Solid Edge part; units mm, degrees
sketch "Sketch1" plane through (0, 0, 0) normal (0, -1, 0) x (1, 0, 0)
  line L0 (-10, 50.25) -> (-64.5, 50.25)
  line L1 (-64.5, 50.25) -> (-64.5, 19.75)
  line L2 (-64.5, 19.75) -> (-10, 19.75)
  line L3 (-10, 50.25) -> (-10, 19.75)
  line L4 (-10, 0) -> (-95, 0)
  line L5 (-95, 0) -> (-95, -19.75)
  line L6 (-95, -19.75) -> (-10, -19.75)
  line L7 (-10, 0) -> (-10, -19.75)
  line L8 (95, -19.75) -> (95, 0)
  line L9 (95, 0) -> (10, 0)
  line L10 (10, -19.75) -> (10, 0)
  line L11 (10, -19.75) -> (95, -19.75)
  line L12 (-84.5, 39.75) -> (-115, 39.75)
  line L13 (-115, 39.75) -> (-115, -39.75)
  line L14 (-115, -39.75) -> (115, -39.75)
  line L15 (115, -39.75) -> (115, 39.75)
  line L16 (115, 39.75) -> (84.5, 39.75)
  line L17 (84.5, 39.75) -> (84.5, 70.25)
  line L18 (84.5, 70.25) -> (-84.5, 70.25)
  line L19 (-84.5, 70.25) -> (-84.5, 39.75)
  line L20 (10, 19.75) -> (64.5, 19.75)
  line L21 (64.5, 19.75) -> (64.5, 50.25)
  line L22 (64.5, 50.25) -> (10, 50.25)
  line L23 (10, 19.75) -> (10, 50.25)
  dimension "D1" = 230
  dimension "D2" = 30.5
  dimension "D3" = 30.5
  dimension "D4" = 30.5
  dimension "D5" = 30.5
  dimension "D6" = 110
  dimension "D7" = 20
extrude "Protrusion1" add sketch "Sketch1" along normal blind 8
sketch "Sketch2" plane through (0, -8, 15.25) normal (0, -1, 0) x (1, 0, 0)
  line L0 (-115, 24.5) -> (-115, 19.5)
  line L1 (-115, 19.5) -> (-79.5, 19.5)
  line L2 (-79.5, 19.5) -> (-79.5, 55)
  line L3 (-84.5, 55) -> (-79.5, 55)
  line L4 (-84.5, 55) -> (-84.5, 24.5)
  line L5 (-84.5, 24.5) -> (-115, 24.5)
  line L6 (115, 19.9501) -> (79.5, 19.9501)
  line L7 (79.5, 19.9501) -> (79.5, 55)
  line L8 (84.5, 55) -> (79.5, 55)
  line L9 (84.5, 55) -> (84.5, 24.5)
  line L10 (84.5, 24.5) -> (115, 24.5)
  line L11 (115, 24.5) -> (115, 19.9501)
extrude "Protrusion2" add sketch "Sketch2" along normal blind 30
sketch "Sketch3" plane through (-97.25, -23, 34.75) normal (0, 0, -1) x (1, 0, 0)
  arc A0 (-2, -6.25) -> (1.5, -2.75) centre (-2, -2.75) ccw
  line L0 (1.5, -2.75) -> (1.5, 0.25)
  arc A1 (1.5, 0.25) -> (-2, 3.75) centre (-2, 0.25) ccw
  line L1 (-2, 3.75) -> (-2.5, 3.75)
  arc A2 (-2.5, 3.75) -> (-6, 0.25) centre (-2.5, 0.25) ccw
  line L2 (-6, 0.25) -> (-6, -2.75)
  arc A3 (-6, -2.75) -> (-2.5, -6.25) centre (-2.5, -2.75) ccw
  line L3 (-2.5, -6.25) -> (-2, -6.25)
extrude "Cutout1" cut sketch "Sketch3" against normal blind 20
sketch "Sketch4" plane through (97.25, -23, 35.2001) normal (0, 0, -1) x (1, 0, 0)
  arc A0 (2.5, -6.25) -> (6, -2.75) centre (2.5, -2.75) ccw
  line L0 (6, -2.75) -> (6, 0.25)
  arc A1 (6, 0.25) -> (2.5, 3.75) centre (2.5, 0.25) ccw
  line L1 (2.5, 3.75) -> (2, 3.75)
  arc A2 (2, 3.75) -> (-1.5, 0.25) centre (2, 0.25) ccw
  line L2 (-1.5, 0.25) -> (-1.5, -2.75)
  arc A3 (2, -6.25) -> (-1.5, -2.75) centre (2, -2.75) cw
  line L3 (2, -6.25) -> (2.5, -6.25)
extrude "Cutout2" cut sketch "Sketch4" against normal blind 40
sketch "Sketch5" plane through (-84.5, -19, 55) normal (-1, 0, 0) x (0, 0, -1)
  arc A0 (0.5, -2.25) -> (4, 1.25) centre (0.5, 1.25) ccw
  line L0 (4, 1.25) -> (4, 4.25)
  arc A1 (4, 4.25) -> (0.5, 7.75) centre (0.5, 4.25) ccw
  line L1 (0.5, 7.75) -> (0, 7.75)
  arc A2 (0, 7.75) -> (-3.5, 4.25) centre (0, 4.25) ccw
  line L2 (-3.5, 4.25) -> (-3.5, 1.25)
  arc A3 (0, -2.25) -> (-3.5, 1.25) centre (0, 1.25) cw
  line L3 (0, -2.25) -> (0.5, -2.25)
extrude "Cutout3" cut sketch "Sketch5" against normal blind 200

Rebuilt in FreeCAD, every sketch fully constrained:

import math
import FreeCAD as App
import Part
import Sketcher

V = App.Vector
Q = App.Units.Quantity

doc = App.newDocument("Part")
params = doc.addObject("Spreadsheet::Sheet", "Params")
for row, (alias, value) in enumerate([
    ("sketch1_width", "230 mm"),
    ("sketch1_width2", "169 mm"),
    ("sketch1_width3", "85 mm"),
    ("sketch1_width4", "54.5 mm"),
    ("sketch1_height", "79.5 mm"),
    ("pad1_length", "8 mm"),
    ("sketch2_width", "5 mm"),
    ("sketch2_width2", "30.5 mm"),
    ("sketch2_height", "4.55 mm"),
    ("pad2_length", "30 mm"),
    ("sketch3_radius", "3.5 mm"),
    ("sketch3_height", "3 mm"),
    ("sketch3_width", "0.5 mm"),
    ("pocket1_length", "20 mm"),
    ("sketch4_radius", "3.5 mm"),
    ("sketch4_height", "3 mm"),
    ("sketch4_width", "0.5 mm"),
    ("pocket2_length", "40 mm"),
    ("sketch5_radius", "3.5 mm"),
    ("sketch5_width", "3 mm"),
    ("sketch5_height", "0.5 mm"),
    ("pocket3_length", "200 mm"),
], start=1):
    params.set(f"A{row}", alias)
    params.set(f"B{row}", "=" + value)
    params.setAlias(f"B{row}", alias)

body = doc.addObject("PartDesign::Body", "Body")

# Sketch on XZ plane
sketch1 = body.newObject("Sketcher::SketchObject", "Sketch")
sketch1.AttachmentSupport = (doc.getObject("XZ_Plane"), [""])
sketch1.MapMode = "FlatFace"
sketch1.addGeometry(Part.LineSegment(V(-84, 70, 0), V(-84, 40, 0)), False)
sketch1.addGeometry(Part.LineSegment(V(-84, 40, 0), V(-115, 40, 0)), False)
sketch1.addGeometry(Part.LineSegment(V(-115, 40, 0), V(-115, -40, 0)), False)
sketch1.addGeometry(Part.LineSegment(V(-115, -40, 0), V(115, -40, 0)), False)
sketch1.addGeometry(Part.LineSegment(V(115, -40, 0), V(115, 40, 0)), False)
sketch1.addGeometry(Part.LineSegment(V(115, 40, 0), V(84, 40, 0)), False)
sketch1.addGeometry(Part.LineSegment(V(84, 40, 0), V(84, 70, 0)), False)
sketch1.addGeometry(Part.LineSegment(V(84, 70, 0), V(-84, 70, 0)), False)
sketch1.addGeometry(Part.LineSegment(V(-95, 0, 0), V(-10, 0, 0)), False)
sketch1.addGeometry(Part.LineSegment(V(-10, 0, 0), V(-10, -20, 0)), False)
sketch1.addGeometry(Part.LineSegment(V(-10, -20, 0), V(-95, -20, 0)), False)
sketch1.addGeometry(Part.LineSegment(V(-95, -20, 0), V(-95, 0, 0)), False)
sketch1.addGeometry(Part.LineSegment(V(95, 0, 0), V(95, -20, 0)), False)
sketch1.addGeometry(Part.LineSegment(V(95, -20, 0), V(10, -20, 0)), False)
sketch1.addGeometry(Part.LineSegment(V(10, -20, 0), V(10, 0, 0)), False)
sketch1.addGeometry(Part.LineSegment(V(10, 0, 0), V(95, 0, 0)), False)
sketch1.addGeometry(Part.LineSegment(V(-64, 50, 0), V(-10, 50, 0)), False)
sketch1.addGeometry(Part.LineSegment(V(-10, 50, 0), V(-10, 20, 0)), False)
sketch1.addGeometry(Part.LineSegment(V(-10, 20, 0), V(-64, 20, 0)), False)
sketch1.addGeometry(Part.LineSegment(V(-64, 20, 0), V(-64, 50, 0)), False)
sketch1.addGeometry(Part.LineSegment(V(64, 20, 0), V(10, 20, 0)), False)
sketch1.addGeometry(Part.LineSegment(V(10, 20, 0), V(10, 50, 0)), False)
sketch1.addGeometry(Part.LineSegment(V(10, 50, 0), V(64, 50, 0)), False)
sketch1.addGeometry(Part.LineSegment(V(64, 50, 0), V(64, 20, 0)), False)
sketch1.addConstraint(Sketcher.Constraint("Coincident", 0, 2, 1, 1))
sketch1.addConstraint(Sketcher.Constraint("Coincident", 1, 2, 2, 1))
sketch1.addConstraint(Sketcher.Constraint("Coincident", 2, 2, 3, 1))
sketch1.addConstraint(Sketcher.Constraint("Coincident", 3, 2, 4, 1))
sketch1.addConstraint(Sketcher.Constraint("Coincident", 4, 2, 5, 1))
sketch1.addConstraint(Sketcher.Constraint("Coincident", 5, 2, 6, 1))
sketch1.addConstraint(Sketcher.Constraint("Coincident", 6, 2, 7, 1))
sketch1.addConstraint(Sketcher.Constraint("Coincident", 7, 2, 0, 1))
sketch1.addConstraint(Sketcher.Constraint("Coincident", 8, 2, 9, 1))
sketch1.addConstraint(Sketcher.Constraint("Coincident", 9, 2, 10, 1))
sketch1.addConstraint(Sketcher.Constraint("Coincident", 10, 2, 11, 1))
sketch1.addConstraint(Sketcher.Constraint("Coincident", 11, 2, 8, 1))
sketch1.addConstraint(Sketcher.Constraint("Coincident", 12, 2, 13, 1))
sketch1.addConstraint(Sketcher.Constraint("Coincident", 13, 2, 14, 1))
sketch1.addConstraint(Sketcher.Constraint("Coincident", 14, 2, 15, 1))
sketch1.addConstraint(Sketcher.Constraint("Coincident", 15, 2, 12, 1))
sketch1.addConstraint(Sketcher.Constraint("Coincident", 16, 2, 17, 1))
sketch1.addConstraint(Sketcher.Constraint("Coincident", 17, 2, 18, 1))
sketch1.addConstraint(Sketcher.Constraint("Coincident", 18, 2, 19, 1))
sketch1.addConstraint(Sketcher.Constraint("Coincident", 19, 2, 16, 1))
sketch1.addConstraint(Sketcher.Constraint("Coincident", 20, 2, 21, 1))
sketch1.addConstraint(Sketcher.Constraint("Coincident", 21, 2, 22, 1))
sketch1.addConstraint(Sketcher.Constraint("Coincident", 22, 2, 23, 1))
sketch1.addConstraint(Sketcher.Constraint("Coincident", 23, 2, 20, 1))
sketch1.addConstraint(Sketcher.Constraint("Vertical", 0))
sketch1.addConstraint(Sketcher.Constraint("Horizontal", 1))
sketch1.addConstraint(Sketcher.Constraint("Vertical", 2))
sketch1.addConstraint(Sketcher.Constraint("Horizontal", 3))
sketch1.addConstraint(Sketcher.Constraint("Vertical", 4))
sketch1.addConstraint(Sketcher.Constraint("Horizontal", 5))
sketch1.addConstraint(Sketcher.Constraint("Vertical", 6))
sketch1.addConstraint(Sketcher.Constraint("Horizontal", 7))
sketch1.addConstraint(Sketcher.Constraint("Horizontal", 8))
sketch1.addConstraint(Sketcher.Constraint("Vertical", 9))
sketch1.addConstraint(Sketcher.Constraint("Horizontal", 10))
sketch1.addConstraint(Sketcher.Constraint("Vertical", 11))
sketch1.addConstraint(Sketcher.Constraint("Vertical", 12))
sketch1.addConstraint(Sketcher.Constraint("Horizontal", 13))
sketch1.addConstraint(Sketcher.Constraint("Vertical", 14))
sketch1.addConstraint(Sketcher.Constraint("Horizontal", 15))
sketch1.addConstraint(Sketcher.Constraint("Horizontal", 16))
sketch1.addConstraint(Sketcher.Constraint("Vertical", 17))
sketch1.addConstraint(Sketcher.Constraint("Horizontal", 18))
sketch1.addConstraint(Sketcher.Constraint("Vertical", 19))
sketch1.addConstraint(Sketcher.Constraint("Horizontal", 20))
sketch1.addConstraint(Sketcher.Constraint("Vertical", 21))
sketch1.addConstraint(Sketcher.Constraint("Horizontal", 22))
sketch1.addConstraint(Sketcher.Constraint("Vertical", 23))
sketch1.addConstraint(Sketcher.Constraint("Symmetric", 1, 2, 3, 2, -1, 1))
sketch1.addConstraint(Sketcher.Constraint("Symmetric", 8, 2, 14, 2, -1, 1))
sketch1.addConstraint(Sketcher.Constraint("Symmetric", 13, 2, 17, 2, -1, 1))
sketch1.addConstraint(Sketcher.Constraint("Symmetric", 9, 2, 20, 2, -1, 1))
sketch1.addConstraint(Sketcher.Constraint("Symmetric", 0, 2, 5, 2, -2))
sketch1.addConstraint(Sketcher.Constraint("Symmetric", 10, 2, 12, 2, -2))
sketch1.addConstraint(Sketcher.Constraint("Symmetric", 19, 2, 22, 2, -2))
sketch1.addConstraint(Sketcher.Constraint("PointOnObject", 8, 2, -1))
sketch1.addConstraint(Sketcher.Constraint("Equal", 5, 0))
sketch1.addConstraint(Sketcher.Constraint("Equal", 6, 17))
sketch1.addConstraint(Sketcher.Constraint("DistanceX", 3, 1, 3, 2, Q("230 mm")))
sketch1.addConstraint(Sketcher.Constraint("DistanceX", 7, 2, 7, 1, Q("169 mm")))
sketch1.addConstraint(Sketcher.Constraint("DistanceX", 8, 1, 8, 2, Q("85 mm")))
sketch1.addConstraint(Sketcher.Constraint("DistanceX", 16, 1, 16, 2, Q("54.5 mm")))
sketch1.addConstraint(Sketcher.Constraint("DistanceY", 2, 2, 2, 1, Q("79.5 mm")))
sketch1.addConstraint(Sketcher.Constraint("DistanceX", 8, 2, -1, 1, Q("10 mm")))
sketch1.addConstraint(Sketcher.Constraint("DistanceY", 2, 2, 9, 2, Q("20 mm")))
sketch1.setExpression("Constraints[58]", "Params.sketch1_width")
sketch1.setExpression("Constraints[59]", "Params.sketch1_width2")
sketch1.setExpression("Constraints[60]", "Params.sketch1_width3")
sketch1.setExpression("Constraints[61]", "Params.sketch1_width4")
sketch1.setExpression("Constraints[62]", "Params.sketch1_height")
pad1 = body.newObject("PartDesign::Pad", "Pad")
pad1.Profile = sketch1
pad1.setExpression("Length", "Params.pad1_length")

# Sketch on XZ plane
sketch2 = body.newObject("Sketcher::SketchObject", "Sketch001")
sketch2.AttachmentSupport = (doc.getObject("XZ_Plane"), [""])
sketch2.MapMode = "FlatFace"
sketch2.AttachmentOffset = App.Placement(V(0, 0, 8), App.Rotation())
sketch2.addGeometry(Part.LineSegment(V(-84.5, 39.8, 0), V(-115, 39.8, 0)), False)
sketch2.addGeometry(Part.LineSegment(V(-115, 39.8, 0), V(-115, 34.8, 0)), False)
sketch2.addGeometry(Part.LineSegment(V(-115, 34.8, 0), V(-79.5, 34.8, 0)), False)
sketch2.addGeometry(Part.LineSegment(V(-79.5, 34.8, 0), V(-79.5, 70.2, 0)), False)
sketch2.addGeometry(Part.LineSegment(V(-79.5, 70.2, 0), V(-84.5, 70.2, 0)), False)
sketch2.addGeometry(Part.LineSegment(V(-84.5, 70.2, 0), V(-84.5, 39.8, 0)), False)
sketch2.addGeometry(Part.LineSegment(V(79.5, 35.2, 0), V(115, 35.2, 0)), False)
sketch2.addGeometry(Part.LineSegment(V(115, 35.2, 0), V(115, 39.8, 0)), False)
sketch2.addGeometry(Part.LineSegment(V(115, 39.8, 0), V(84.5, 39.8, 0)), False)
sketch2.addGeometry(Part.LineSegment(V(84.5, 39.8, 0), V(84.5, 70.2, 0)), False)
sketch2.addGeometry(Part.LineSegment(V(84.5, 70.2, 0), V(79.5, 70.2, 0)), False)
sketch2.addGeometry(Part.LineSegment(V(79.5, 70.2, 0), V(79.5, 35.2, 0)), False)
sketch2.addConstraint(Sketcher.Constraint("Coincident", 0, 2, 1, 1))
sketch2.addConstraint(Sketcher.Constraint("Coincident", 1, 2, 2, 1))
sketch2.addConstraint(Sketcher.Constraint("Coincident", 2, 2, 3, 1))
sketch2.addConstraint(Sketcher.Constraint("Coincident", 3, 2, 4, 1))
sketch2.addConstraint(Sketcher.Constraint("Coincident", 4, 2, 5, 1))
sketch2.addConstraint(Sketcher.Constraint("Coincident", 5, 2, 0, 1))
sketch2.addConstraint(Sketcher.Constraint("Coincident", 6, 2, 7, 1))
sketch2.addConstraint(Sketcher.Constraint("Coincident", 7, 2, 8, 1))
sketch2.addConstraint(Sketcher.Constraint("Coincident", 8, 2, 9, 1))
sketch2.addConstraint(Sketcher.Constraint("Coincident", 9, 2, 10, 1))
sketch2.addConstraint(Sketcher.Constraint("Coincident", 10, 2, 11, 1))
sketch2.addConstraint(Sketcher.Constraint("Coincident", 11, 2, 6, 1))
sketch2.addConstraint(Sketcher.Constraint("Horizontal", 0))
sketch2.addConstraint(Sketcher.Constraint("Vertical", 1))
sketch2.addConstraint(Sketcher.Constraint("Horizontal", 2))
sketch2.addConstraint(Sketcher.Constraint("Vertical", 3))
sketch2.addConstraint(Sketcher.Constraint("Horizontal", 4))
sketch2.addConstraint(Sketcher.Constraint("Vertical", 5))
sketch2.addConstraint(Sketcher.Constraint("Horizontal", 6))
sketch2.addConstraint(Sketcher.Constraint("Vertical", 7))
sketch2.addConstraint(Sketcher.Constraint("Horizontal", 8))
sketch2.addConstraint(Sketcher.Constraint("Vertical", 9))
sketch2.addConstraint(Sketcher.Constraint("Horizontal", 10))
sketch2.addConstraint(Sketcher.Constraint("Vertical", 11))
sketch2.addConstraint(Sketcher.Constraint("Symmetric", 0, 2, 7, 2, -2))
sketch2.addConstraint(Sketcher.Constraint("Symmetric", 4, 2, 9, 2, -2))
sketch2.addConstraint(Sketcher.Constraint("Equal", 2, 6))
sketch2.addConstraint(Sketcher.Constraint("Equal", 10, 1))
sketch2.addConstraint(Sketcher.Constraint("Equal", 6, 3))
sketch2.addConstraint(Sketcher.Constraint("DistanceX", 4, 2, 4, 1, Q("5 mm")))
sketch2.addConstraint(Sketcher.Constraint("DistanceX", 0, 2, 0, 1, Q("30.5 mm")))
sketch2.addConstraint(Sketcher.Constraint("DistanceX", 0, 2, -1, 1, Q("115 mm")))
sketch2.addConstraint(Sketcher.Constraint("DistanceY", 7, 1, 7, 2, Q("4.55 mm")))
sketch2.addConstraint(Sketcher.Constraint("DistanceY", -1, 1, 6, 2, Q("35.2 mm")))
sketch2.setExpression("Constraints[29]", "Params.sketch2_width")
sketch2.setExpression("Constraints[30]", "Params.sketch2_width2")
sketch2.setExpression("Constraints[32]", "Params.sketch2_height")
pad2 = body.newObject("PartDesign::Pad", "Pad001")
pad2.Profile = sketch2
pad2.setExpression("Length", "Params.pad2_length")

# Sketch on XY plane
sketch3 = body.newObject("Sketcher::SketchObject", "Sketch002")
sketch3.AttachmentSupport = (doc.getObject("XY_Plane"), [""])
sketch3.MapMode = "FlatFace"
sketch3.AttachmentOffset = App.Placement(V(0, 0, 34.75), App.Rotation())
sketch3.addGeometry(Part.LineSegment(V(-99.8, -16.8, 0), V(-99.2, -16.8, 0)), False)
sketch3.addGeometry(Part.ArcOfCircle(Part.Circle(V(-99.2, -20.2, 0), V(0, 0, 1), 3.5), math.radians(0), math.radians(90)), False)
sketch3.addGeometry(Part.LineSegment(V(-95.8, -20.2, 0), V(-95.8, -23.2, 0)), False)
sketch3.addGeometry(Part.ArcOfCircle(Part.Circle(V(-99.2, -23.2, 0), V(0, 0, 1), 3.5), math.radians(-90), math.radians(0)), False)
sketch3.addGeometry(Part.LineSegment(V(-99.2, -26.8, 0), V(-99.8, -26.8, 0)), False)
sketch3.addGeometry(Part.ArcOfCircle(Part.Circle(V(-99.8, -23.2, 0), V(0, 0, 1), 3.5), math.radians(180), math.radians(270)), False)
sketch3.addGeometry(Part.LineSegment(V(-103.2, -23.2, 0), V(-103.2, -20.2, 0)), False)
sketch3.addGeometry(Part.ArcOfCircle(Part.Circle(V(-99.8, -20.2, 0), V(0, 0, 1), 3.5), math.radians(90), math.radians(180)), False)
sketch3.addConstraint(Sketcher.Constraint("Tangent", 0, 2, 1, 2))
sketch3.addConstraint(Sketcher.Constraint("Tangent", 1, 1, 2, 1))
sketch3.addConstraint(Sketcher.Constraint("Tangent", 2, 2, 3, 2))
sketch3.addConstraint(Sketcher.Constraint("Tangent", 3, 1, 4, 1))
sketch3.addConstraint(Sketcher.Constraint("Tangent", 4, 2, 5, 2))
sketch3.addConstraint(Sketcher.Constraint("Tangent", 5, 1, 6, 1))
sketch3.addConstraint(Sketcher.Constraint("Tangent", 6, 2, 7, 2))
sketch3.addConstraint(Sketcher.Constraint("Tangent", 7, 1, 0, 1))
sketch3.addConstraint(Sketcher.Constraint("Horizontal", 0))
sketch3.addConstraint(Sketcher.Constraint("Vertical", 2))
sketch3.addConstraint(Sketcher.Constraint("Horizontal", 4))
sketch3.addConstraint(Sketcher.Constraint("Vertical", 6))
sketch3.addConstraint(Sketcher.Constraint("Equal", 1, 3))
sketch3.addConstraint(Sketcher.Constraint("Equal", 3, 5))
sketch3.addConstraint(Sketcher.Constraint("Equal", 5, 7))
sketch3.addConstraint(Sketcher.Constraint("Radius", 1, Q("3.5 mm")))
sketch3.addConstraint(Sketcher.Constraint("DistanceY", 2, 2, 2, 1, Q("3 mm")))
sketch3.addConstraint(Sketcher.Constraint("DistanceX", 0, 1, 0, 2, Q("0.5 mm")))
sketch3.addConstraint(Sketcher.Constraint("DistanceX", 1, 3, -1, 1, Q("99.25 mm")))
sketch3.addConstraint(Sketcher.Constraint("DistanceY", 1, 3, -1, 1, Q("20.25 mm")))
sketch3.setExpression("Constraints[15]", "Params.sketch3_radius")
sketch3.setExpression("Constraints[16]", "Params.sketch3_height")
sketch3.setExpression("Constraints[17]", "Params.sketch3_width")
pocket1 = body.newObject("PartDesign::Pocket", "Pocket")
pocket1.Profile = sketch3
pocket1.setExpression("Length", "Params.pocket1_length")
pocket1.Reversed = True

# Sketch on XY plane
sketch4 = body.newObject("Sketcher::SketchObject", "Sketch003")
sketch4.AttachmentSupport = (doc.getObject("XY_Plane"), [""])
sketch4.MapMode = "FlatFace"
sketch4.AttachmentOffset = App.Placement(V(0, 0, 35.2001), App.Rotation())
sketch4.addGeometry(Part.LineSegment(V(99.2, -16.8, 0), V(99.8, -16.8, 0)), False)
sketch4.addGeometry(Part.ArcOfCircle(Part.Circle(V(99.8, -20.2, 0), V(0, 0, 1), 3.5), math.radians(0), math.radians(90)), False)
sketch4.addGeometry(Part.LineSegment(V(103.2, -20.2, 0), V(103.2, -23.2, 0)), False)
sketch4.addGeometry(Part.ArcOfCircle(Part.Circle(V(99.8, -23.2, 0), V(0, 0, 1), 3.5), math.radians(-90), math.radians(0)), False)
sketch4.addGeometry(Part.LineSegment(V(99.8, -26.8, 0), V(99.2, -26.8, 0)), False)
sketch4.addGeometry(Part.ArcOfCircle(Part.Circle(V(99.2, -23.2, 0), V(0, 0, 1), 3.5), math.radians(180), math.radians(270)), False)
sketch4.addGeometry(Part.LineSegment(V(95.8, -23.2, 0), V(95.8, -20.2, 0)), False)
sketch4.addGeometry(Part.ArcOfCircle(Part.Circle(V(99.2, -20.2, 0), V(0, 0, 1), 3.5), math.radians(90), math.radians(180)), False)
sketch4.addConstraint(Sketcher.Constraint("Tangent", 0, 2, 1, 2))
sketch4.addConstraint(Sketcher.Constraint("Tangent", 1, 1, 2, 1))
sketch4.addConstraint(Sketcher.Constraint("Tangent", 2, 2, 3, 2))
sketch4.addConstraint(Sketcher.Constraint("Tangent", 3, 1, 4, 1))
sketch4.addConstraint(Sketcher.Constraint("Tangent", 4, 2, 5, 2))
sketch4.addConstraint(Sketcher.Constraint("Tangent", 5, 1, 6, 1))
sketch4.addConstraint(Sketcher.Constraint("Tangent", 6, 2, 7, 2))
sketch4.addConstraint(Sketcher.Constraint("Tangent", 7, 1, 0, 1))
sketch4.addConstraint(Sketcher.Constraint("Horizontal", 0))
sketch4.addConstraint(Sketcher.Constraint("Vertical", 2))
sketch4.addConstraint(Sketcher.Constraint("Horizontal", 4))
sketch4.addConstraint(Sketcher.Constraint("Vertical", 6))
sketch4.addConstraint(Sketcher.Constraint("Equal", 1, 3))
sketch4.addConstraint(Sketcher.Constraint("Equal", 3, 5))
sketch4.addConstraint(Sketcher.Constraint("Equal", 5, 7))
sketch4.addConstraint(Sketcher.Constraint("Radius", 1, Q("3.5 mm")))
sketch4.addConstraint(Sketcher.Constraint("DistanceY", 2, 2, 2, 1, Q("3 mm")))
sketch4.addConstraint(Sketcher.Constraint("DistanceX", 0, 1, 0, 2, Q("0.5 mm")))
sketch4.addConstraint(Sketcher.Constraint("DistanceX", -1, 1, 1, 3, Q("99.75 mm")))
sketch4.addConstraint(Sketcher.Constraint("DistanceY", 1, 3, -1, 1, Q("20.25 mm")))
sketch4.setExpression("Constraints[15]", "Params.sketch4_radius")
sketch4.setExpression("Constraints[16]", "Params.sketch4_height")
sketch4.setExpression("Constraints[17]", "Params.sketch4_width")
pocket2 = body.newObject("PartDesign::Pocket", "Pocket001")
pocket2.Profile = sketch4
pocket2.setExpression("Length", "Params.pocket2_length")
pocket2.Reversed = True

# Sketch on YZ plane
sketch5 = body.newObject("Sketcher::SketchObject", "Sketch004")
sketch5.AttachmentSupport = (doc.getObject("YZ_Plane"), [""])
sketch5.MapMode = "FlatFace"
sketch5.AttachmentOffset = App.Placement(V(0, 0, -84.5), App.Rotation())
sketch5.addGeometry(Part.LineSegment(V(-16.8, 55, 0), V(-16.8, 54.5, 0)), False)
sketch5.addGeometry(Part.ArcOfCircle(Part.Circle(V(-20.2, 54.5, 0), V(0, 0, 1), 3.5), math.radians(-90), math.radians(0)), False)
sketch5.addGeometry(Part.LineSegment(V(-20.2, 51, 0), V(-23.2, 51, 0)), False)
sketch5.addGeometry(Part.ArcOfCircle(Part.Circle(V(-23.2, 54.5, 0), V(0, 0, 1), 3.5), math.radians(180), math.radians(270)), False)
sketch5.addGeometry(Part.LineSegment(V(-26.8, 54.5, 0), V(-26.8, 55, 0)), False)
sketch5.addGeometry(Part.ArcOfCircle(Part.Circle(V(-23.2, 55, 0), V(0, 0, 1), 3.5), math.radians(90), math.radians(180)), False)
sketch5.addGeometry(Part.LineSegment(V(-23.2, 58.5, 0), V(-20.2, 58.5, 0)), False)
sketch5.addGeometry(Part.ArcOfCircle(Part.Circle(V(-20.2, 55, 0), V(0, 0, 1), 3.5), math.radians(0), math.radians(90)), False)
sketch5.addConstraint(Sketcher.Constraint("Tangent", 0, 2, 1, 2))
sketch5.addConstraint(Sketcher.Constraint("Tangent", 1, 1, 2, 1))
sketch5.addConstraint(Sketcher.Constraint("Tangent", 2, 2, 3, 2))
sketch5.addConstraint(Sketcher.Constraint("Tangent", 3, 1, 4, 1))
sketch5.addConstraint(Sketcher.Constraint("Tangent", 4, 2, 5, 2))
sketch5.addConstraint(Sketcher.Constraint("Tangent", 5, 1, 6, 1))
sketch5.addConstraint(Sketcher.Constraint("Tangent", 6, 2, 7, 2))
sketch5.addConstraint(Sketcher.Constraint("Tangent", 7, 1, 0, 1))
sketch5.addConstraint(Sketcher.Constraint("Vertical", 0))
sketch5.addConstraint(Sketcher.Constraint("Horizontal", 2))
sketch5.addConstraint(Sketcher.Constraint("Vertical", 4))
sketch5.addConstraint(Sketcher.Constraint("Horizontal", 6))
sketch5.addConstraint(Sketcher.Constraint("Equal", 1, 3))
sketch5.addConstraint(Sketcher.Constraint("Equal", 3, 5))
sketch5.addConstraint(Sketcher.Constraint("Equal", 5, 7))
sketch5.addConstraint(Sketcher.Constraint("Radius", 1, Q("3.5 mm")))
sketch5.addConstraint(Sketcher.Constraint("DistanceX", 2, 2, 2, 1, Q("3 mm")))
sketch5.addConstraint(Sketcher.Constraint("DistanceY", 0, 2, 0, 1, Q("0.5 mm")))
sketch5.addConstraint(Sketcher.Constraint("DistanceY", -1, 1, 5, 3, Q("55 mm")))
sketch5.addConstraint(Sketcher.Constraint("DistanceX", 1, 3, -1, 1, Q("20.25 mm")))
sketch5.setExpression("Constraints[15]", "Params.sketch5_radius")
sketch5.setExpression("Constraints[16]", "Params.sketch5_width")
sketch5.setExpression("Constraints[17]", "Params.sketch5_height")
pocket3 = body.newObject("PartDesign::Pocket", "Pocket002")
pocket3.Profile = sketch5
pocket3.setExpression("Length", "Params.pocket3_length")
pocket3.Reversed = True

doc.recompute()
